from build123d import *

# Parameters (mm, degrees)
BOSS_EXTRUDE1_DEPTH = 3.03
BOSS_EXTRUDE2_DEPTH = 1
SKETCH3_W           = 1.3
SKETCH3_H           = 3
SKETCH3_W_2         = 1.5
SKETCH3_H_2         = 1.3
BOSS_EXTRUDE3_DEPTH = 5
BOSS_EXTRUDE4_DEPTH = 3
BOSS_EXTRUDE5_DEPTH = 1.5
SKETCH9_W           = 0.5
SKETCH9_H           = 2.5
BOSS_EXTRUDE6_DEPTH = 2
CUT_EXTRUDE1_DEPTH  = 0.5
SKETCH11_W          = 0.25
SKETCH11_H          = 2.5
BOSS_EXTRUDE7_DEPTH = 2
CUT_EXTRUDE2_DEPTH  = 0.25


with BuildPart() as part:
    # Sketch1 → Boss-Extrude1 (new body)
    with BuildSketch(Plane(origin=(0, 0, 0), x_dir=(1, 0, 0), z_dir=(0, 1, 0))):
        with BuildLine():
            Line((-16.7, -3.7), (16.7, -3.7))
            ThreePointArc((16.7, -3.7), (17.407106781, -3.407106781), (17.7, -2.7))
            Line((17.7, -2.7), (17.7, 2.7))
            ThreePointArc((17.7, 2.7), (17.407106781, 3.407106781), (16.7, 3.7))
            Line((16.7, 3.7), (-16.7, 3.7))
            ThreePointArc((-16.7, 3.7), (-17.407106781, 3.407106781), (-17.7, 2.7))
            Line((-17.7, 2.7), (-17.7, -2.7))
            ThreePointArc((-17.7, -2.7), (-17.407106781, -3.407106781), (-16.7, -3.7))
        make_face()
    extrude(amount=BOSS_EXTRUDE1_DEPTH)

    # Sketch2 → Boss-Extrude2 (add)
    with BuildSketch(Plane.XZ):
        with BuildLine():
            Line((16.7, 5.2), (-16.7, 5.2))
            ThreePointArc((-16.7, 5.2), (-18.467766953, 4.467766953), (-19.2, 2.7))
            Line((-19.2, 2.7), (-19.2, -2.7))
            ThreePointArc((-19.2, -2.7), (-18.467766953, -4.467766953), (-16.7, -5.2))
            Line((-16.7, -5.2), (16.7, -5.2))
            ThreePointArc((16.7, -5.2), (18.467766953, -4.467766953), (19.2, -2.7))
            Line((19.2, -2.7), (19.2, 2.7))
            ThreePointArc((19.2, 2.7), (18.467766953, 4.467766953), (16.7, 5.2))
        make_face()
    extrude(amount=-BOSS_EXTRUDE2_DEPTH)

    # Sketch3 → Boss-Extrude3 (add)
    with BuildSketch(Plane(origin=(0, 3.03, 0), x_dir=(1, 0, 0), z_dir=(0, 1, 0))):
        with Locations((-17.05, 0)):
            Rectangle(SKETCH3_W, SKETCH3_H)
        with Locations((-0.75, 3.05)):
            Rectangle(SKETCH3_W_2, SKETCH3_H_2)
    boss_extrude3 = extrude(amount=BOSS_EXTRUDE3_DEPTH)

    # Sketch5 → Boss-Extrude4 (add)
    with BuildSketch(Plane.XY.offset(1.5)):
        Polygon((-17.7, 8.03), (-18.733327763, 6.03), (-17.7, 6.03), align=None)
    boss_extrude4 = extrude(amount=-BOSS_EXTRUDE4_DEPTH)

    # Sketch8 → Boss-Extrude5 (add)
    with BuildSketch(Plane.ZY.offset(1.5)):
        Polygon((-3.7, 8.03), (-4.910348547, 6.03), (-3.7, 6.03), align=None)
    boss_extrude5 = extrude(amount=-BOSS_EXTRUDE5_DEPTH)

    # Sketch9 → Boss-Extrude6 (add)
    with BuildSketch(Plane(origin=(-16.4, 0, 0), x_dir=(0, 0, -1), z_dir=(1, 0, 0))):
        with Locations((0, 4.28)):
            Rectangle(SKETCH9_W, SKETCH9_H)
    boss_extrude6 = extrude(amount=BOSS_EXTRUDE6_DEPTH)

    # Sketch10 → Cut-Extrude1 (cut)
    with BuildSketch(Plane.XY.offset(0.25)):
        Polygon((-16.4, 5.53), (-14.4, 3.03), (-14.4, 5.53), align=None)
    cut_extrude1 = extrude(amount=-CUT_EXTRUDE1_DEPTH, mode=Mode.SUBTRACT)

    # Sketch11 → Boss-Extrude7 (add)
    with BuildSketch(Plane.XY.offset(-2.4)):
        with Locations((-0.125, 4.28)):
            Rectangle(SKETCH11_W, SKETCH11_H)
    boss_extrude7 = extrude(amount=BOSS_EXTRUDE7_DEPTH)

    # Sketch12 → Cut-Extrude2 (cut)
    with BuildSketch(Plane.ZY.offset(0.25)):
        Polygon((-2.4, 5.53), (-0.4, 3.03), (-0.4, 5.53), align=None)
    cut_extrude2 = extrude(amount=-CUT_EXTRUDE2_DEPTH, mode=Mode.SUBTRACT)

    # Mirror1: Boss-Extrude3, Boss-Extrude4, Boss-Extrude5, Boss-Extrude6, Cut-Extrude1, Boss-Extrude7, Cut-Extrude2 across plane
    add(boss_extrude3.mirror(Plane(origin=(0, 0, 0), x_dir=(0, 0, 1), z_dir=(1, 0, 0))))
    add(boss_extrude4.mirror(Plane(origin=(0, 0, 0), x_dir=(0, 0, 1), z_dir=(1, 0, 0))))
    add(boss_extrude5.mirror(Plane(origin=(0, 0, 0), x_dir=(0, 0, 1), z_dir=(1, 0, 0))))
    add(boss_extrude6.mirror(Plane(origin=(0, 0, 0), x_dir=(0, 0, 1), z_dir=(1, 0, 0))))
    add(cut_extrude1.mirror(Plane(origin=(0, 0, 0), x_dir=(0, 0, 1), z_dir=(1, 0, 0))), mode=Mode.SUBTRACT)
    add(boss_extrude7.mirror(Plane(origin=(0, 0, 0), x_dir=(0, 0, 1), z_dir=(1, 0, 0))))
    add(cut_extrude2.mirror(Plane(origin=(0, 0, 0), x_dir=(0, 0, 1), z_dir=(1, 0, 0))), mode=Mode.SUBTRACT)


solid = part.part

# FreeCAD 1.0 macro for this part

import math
import FreeCAD as App
import Part
import Sketcher
Q = App.Units.Quantity

doc = App.newDocument("Part")
body = doc.addObject("PartDesign::Body", "Body")

# Sketch on XZ plane
sketch1 = body.newObject("Sketcher::SketchObject", "Sketch")
sketch1.AttachmentSupport = (doc.getObject("XZ_Plane"), [""])
sketch1.MapMode = "FlatFace"
sketch1.addGeometry(Part.LineSegment(App.Vector(-16.7, 3.7, 0), App.Vector(16.7, 3.7, 0)), False)
sketch1.addGeometry(Part.ArcOfCircle(Part.Circle(App.Vector(16.7, 2.7, 0), App.Vector(0, 0, 1), 1), math.radians(0), math.radians(90)), False)
sketch1.addGeometry(Part.LineSegment(App.Vector(17.7, 2.7, 0), App.Vector(17.7, -2.7, 0)), False)
sketch1.addGeometry(Part.ArcOfCircle(Part.Circle(App.Vector(16.7, -2.7, 0), App.Vector(0, 0, 1), 1), math.radians(-90), math.radians(0)), False)
sketch1.addGeometry(Part.LineSegment(App.Vector(16.7, -3.7, 0), App.Vector(-16.7, -3.7, 0)), False)
sketch1.addGeometry(Part.ArcOfCircle(Part.Circle(App.Vector(-16.7, -2.7, 0), App.Vector(0, 0, 1), 1), math.radians(-180), math.radians(-90)), False)
sketch1.addGeometry(Part.LineSegment(App.Vector(-17.7, -2.7, 0), App.Vector(-17.7, 2.7, 0)), False)
sketch1.addGeometry(Part.ArcOfCircle(Part.Circle(App.Vector(-16.7, 2.7, 0), App.Vector(0, 0, 1), 1), math.radians(90), math.radians(180)), False)
sketch1.addConstraint(Sketcher.Constraint("Tangent", 0, 2, 1, 2))
sketch1.addConstraint(Sketcher.Constraint("Tangent", 1, 1, 2, 1))
sketch1.addConstraint(Sketcher.Constraint("Tangent", 2, 2, 3, 2))
sketch1.addConstraint(Sketcher.Constraint("Tangent", 3, 1, 4, 1))
sketch1.addConstraint(Sketcher.Constraint("Tangent", 4, 2, 5, 2))
sketch1.addConstraint(Sketcher.Constraint("Tangent", 5, 1, 6, 1))
sketch1.addConstraint(Sketcher.Constraint("Tangent", 6, 2, 7, 2))
sketch1.addConstraint(Sketcher.Constraint("Tangent", 7, 1, 0, 1))
sketch1.addConstraint(Sketcher.Constraint("Horizontal", 0))
sketch1.addConstraint(Sketcher.Constraint("Vertical", 2))
sketch1.addConstraint(Sketcher.Constraint("Horizontal", 4))
sketch1.addConstraint(Sketcher.Constraint("Vertical", 6))
sketch1.addConstraint(Sketcher.Constraint("Equal", 1, 3))
sketch1.addConstraint(Sketcher.Constraint("Equal", 3, 5))
sketch1.addConstraint(Sketcher.Constraint("Equal", 5, 7))
sketch1.addConstraint(Sketcher.Constraint("Symmetric", 1, 3, 5, 3, -1, 1))
sketch1.addConstraint(Sketcher.Constraint("Radius", 1, Q("1 mm")))
sketch1.addConstraint(Sketcher.Constraint("DistanceX", 0, 1, 0, 2, Q("33.4 mm")))
sketch1.addConstraint(Sketcher.Constraint("DistanceY", 2, 2, 2, 1, Q("5.4 mm")))
pad1 = body.newObject("PartDesign::Pad", "Pad")
pad1.Profile = sketch1
pad1.Length = 3.03
pad1.Reversed = True

# Sketch on XZ plane
sketch2 = body.newObject("Sketcher::SketchObject", "Sketch001")
sketch2.AttachmentSupport = (doc.getObject("XZ_Plane"), [""])
sketch2.MapMode = "FlatFace"
sketch2.addGeometry(Part.LineSegment(App.Vector(16.7, 5.2, 0), App.Vector(-16.7, 5.2, 0)), False)
sketch2.addGeometry(Part.ArcOfCircle(Part.Circle(App.Vector(-16.7, 2.7, 0), App.Vector(0, 0, 1), 2.5), math.radians(90), math.radians(180)), False)
sketch2.addGeometry(Part.LineSegment(App.Vector(-19.2, 2.7, 0), App.Vector(-19.2, -2.7, 0)), False)
sketch2.addGeometry(Part.ArcOfCircle(Part.Circle(App.Vector(-16.7, -2.7, 0), App.Vector(0, 0, 1), 2.5), math.radians(180), math.radians(270)), False)
sketch2.addGeometry(Part.LineSegment(App.Vector(-16.7, -5.2, 0), App.Vector(16.7, -5.2, 0)), False)
sketch2.addGeometry(Part.ArcOfCircle(Part.Circle(App.Vector(16.7, -2.7, 0), App.Vector(0, 0, 1), 2.5), math.radians(-90), math.radians(0)), False)
sketch2.addGeometry(Part.LineSegment(App.Vector(19.2, -2.7, 0), App.Vector(19.2, 2.7, 0)), False)
sketch2.addGeometry(Part.ArcOfCircle(Part.Circle(App.Vector(16.7, 2.7, 0), App.Vector(0, 0, 1), 2.5), math.radians(0), math.radians(90)), False)
sketch2.addConstraint(Sketcher.Constraint("Tangent", 0, 2, 1, 1))
sketch2.addConstraint(Sketcher.Constraint("Tangent", 1, 2, 2, 1))
sketch2.addConstraint(Sketcher.Constraint("Tangent", 2, 2, 3, 1))
sketch2.addConstraint(Sketcher.Constraint("Tangent", 3, 2, 4, 1))
sketch2.addConstraint(Sketcher.Constraint("Tangent", 4, 2, 5, 1))
sketch2.addConstraint(Sketcher.Constraint("Tangent", 5, 2, 6, 1))
sketch2.addConstraint(Sketcher.Constraint("Tangent", 6, 2, 7, 1))
sketch2.addConstraint(Sketcher.Constraint("Tangent", 7, 2, 0, 1))
sketch2.addConstraint(Sketcher.Constraint("Horizontal", 0))
sketch2.addConstraint(Sketcher.Constraint("Vertical", 2))
sketch2.addConstraint(Sketcher.Constraint("Horizontal", 4))
sketch2.addConstraint(Sketcher.Constraint("Vertical", 6))
sketch2.addConstraint(Sketcher.Constraint("Equal", 1, 3))
sketch2.addConstraint(Sketcher.Constraint("Equal", 3, 5))
sketch2.addConstraint(Sketcher.Constraint("Equal", 5, 7))
sketch2.addConstraint(Sketcher.Constraint("Symmetric", 1, 3, 5, 3, -1, 1))
sketch2.addConstraint(Sketcher.Constraint("Radius", 1, Q("2.5 mm")))
sketch2.addConstraint(Sketcher.Constraint("DistanceX", 0, 2, 0, 1, Q("33.4 mm")))
sketch2.addConstraint(Sketcher.Constraint("DistanceY", 2, 2, 2, 1, Q("5.4 mm")))
pad2 = body.newObject("PartDesign::Pad", "Pad001")
pad2.Profile = sketch2
pad2.Length = 1
pad2.Reversed = True

# Sketch on XZ plane
sketch3 = body.newObject("Sketcher::SketchObject", "Sketch002")
sketch3.AttachmentSupport = (doc.getObject("XZ_Plane"), [""])
sketch3.MapMode = "FlatFace"
sketch3.AttachmentOffset = App.Placement(App.Vector(0, 0, -3.03), App.Rotation())
sketch3.addGeometry(Part.LineSegment(App.Vector(-17.7, -1.5, 0), App.Vector(-17.7, 1.5, 0)), False)
sketch3.addGeometry(Part.LineSegment(App.Vector(-17.7, 1.5, 0), App.Vector(-16.4, 1.5, 0)), False)
sketch3.addGeometry(Part.LineSegment(App.Vector(-16.4, 1.5, 0), App.Vector(-16.4, -1.5, 0)), False)
sketch3.addGeometry(Part.LineSegment(App.Vector(-16.4, -1.5, 0), App.Vector(-17.7, -1.5, 0)), False)
sketch3.addGeometry(Part.LineSegment(App.Vector(-1.5, -3.7, 0), App.Vector(-1.5, -2.4, 0)), False)
sketch3.addGeometry(Part.LineSegment(App.Vector(-1.5, -2.4, 0), App.Vector(0, -2.4, 0)), False)
sketch3.addGeometry(Part.LineSegment(App.Vector(0, -2.4, 0), App.Vector(0, -3.7, 0)), False)
sketch3.addGeometry(Part.LineSegment(App.Vector(0, -3.7, 0), App.Vector(-1.5, -3.7, 0)), False)
sketch3.addConstraint(Sketcher.Constraint("Coincident", 0, 2, 1, 1))
sketch3.addConstraint(Sketcher.Constraint("Coincident", 1, 2, 2, 1))
sketch3.addConstraint(Sketcher.Constraint("Coincident", 2, 2, 3, 1))
sketch3.addConstraint(Sketcher.Constraint("Coincident", 3, 2, 0, 1))
sketch3.addConstraint(Sketcher.Constraint("Coincident", 4, 2, 5, 1))
sketch3.addConstraint(Sketcher.Constraint("Coincident", 5, 2, 6, 1))
sketch3.addConstraint(Sketcher.Constraint("Coincident", 6, 2, 7, 1))
sketch3.addConstraint(Sketcher.Constraint("Coincident", 7, 2, 4, 1))
sketch3.addConstraint(Sketcher.Constraint("Vertical", 0))
sketch3.addConstraint(Sketcher.Constraint("Horizontal", 1))
sketch3.addConstraint(Sketcher.Constraint("Vertical", 2))
sketch3.addConstraint(Sketcher.Constraint("Horizontal", 3))
sketch3.addConstraint(Sketcher.Constraint("Vertical", 4))
sketch3.addConstraint(Sketcher.Constraint("Horizontal", 5))
sketch3.addConstraint(Sketcher.Constraint("Vertical", 6))
sketch3.addConstraint(Sketcher.Constraint("Horizontal", 7))
sketch3.addConstraint(Sketcher.Constraint("PointOnObject", 5, 2, -2))
sketch3.addConstraint(Sketcher.Constraint("Equal", 3, 4))
sketch3.addConstraint(Sketcher.Constraint("DistanceY", 0, 1, 0, 2, Q("3 mm")))
sketch3.addConstraint(Sketcher.Constraint("DistanceX", 1, 1, 1, 2, Q("1.3 mm")))
sketch3.addConstraint(Sketcher.Constraint("DistanceX", 5, 1, 5, 2, Q("1.5 mm")))
sketch3.addConstraint(Sketcher.Constraint("DistanceX", 0, 2, -1, 1, Q("17.7 mm")))
sketch3.addConstraint(Sketcher.Constraint("DistanceY", -1, 1, 0, 2, Q("1.5 mm")))
sketch3.addConstraint(Sketcher.Constraint("DistanceY", 4, 2, -1, 1, Q("2.4 mm")))
pad3 = body.newObject("PartDesign::Pad", "Pad002")
pad3.Profile = sketch3
pad3.Length = 5
pad3.Reversed = True

# Sketch on XY plane
sketch4 = body.newObject("Sketcher::SketchObject", "Sketch003")
sketch4.AttachmentSupport = (doc.getObject("XY_Plane"), [""])
sketch4.MapMode = "FlatFace"
sketch4.AttachmentOffset = App.Placement(App.Vector(0, 0, 1.5), App.Rotation())
sketch4.addGeometry(Part.LineSegment(App.Vector(-17.7, 8, 0), App.Vector(-18.7, 6, 0)), False)
sketch4.addGeometry(Part.LineSegment(App.Vector(-18.7, 6, 0), App.Vector(-17.7, 6, 0)), False)
sketch4.addGeometry(Part.LineSegment(App.Vector(-17.7, 6, 0), App.Vector(-17.7, 8, 0)), False)
sketch4.addConstraint(Sketcher.Constraint("Coincident", 0, 2, 1, 1))
sketch4.addConstraint(Sketcher.Constraint("Coincident", 1, 2, 2, 1))
sketch4.addConstraint(Sketcher.Constraint("Coincident", 2, 2, 0, 1))
sketch4.addConstraint(Sketcher.Constraint("Horizontal", 1))
sketch4.addConstraint(Sketcher.Constraint("Vertical", 2))
sketch4.addConstraint(Sketcher.Constraint("DistanceY", 2, 1, 2, 2, Q("2 mm")))
sketch4.addConstraint(Sketcher.Constraint("DistanceX", 1, 2, -1, 1, Q("17.7 mm")))
sketch4.addConstraint(Sketcher.Constraint("DistanceY", -1, 1, 0, 2, Q("6.03 mm")))
sketch4.addConstraint(Sketcher.Constraint("Distance", 0, Q("2.25117 mm")))
pad4 = body.newObject("PartDesign::Pad", "Pad003")
pad4.Profile = sketch4
pad4.Length = 3
pad4.Reversed = True

# Sketch on YZ plane
sketch5 = body.newObject("Sketcher::SketchObject", "Sketch004")
sketch5.AttachmentSupport = (doc.getObject("YZ_Plane"), [""])
sketch5.MapMode = "FlatFace"
sketch5.AttachmentOffset = App.Placement(App.Vector(0, 0, -1.5), App.Rotation())
sketch5.addGeometry(Part.LineSegment(App.Vector(8, -3.7, 0), App.Vector(6, -4.9, 0)), False)
sketch5.addGeometry(Part.LineSegment(App.Vector(6, -4.9, 0), App.Vector(6, -3.7, 0)), False)
sketch5.addGeometry(Part.LineSegment(App.Vector(6, -3.7, 0), App.Vector(8, -3.7, 0)), False)
sketch5.addConstraint(Sketcher.Constraint("Coincident", 0, 2, 1, 1))
sketch5.addConstraint(Sketcher.Constraint("Coincident", 1, 2, 2, 1))
sketch5.addConstraint(Sketcher.Constraint("Coincident", 2, 2, 0, 1))
sketch5.addConstraint(Sketcher.Constraint("Vertical", 1))
sketch5.addConstraint(Sketcher.Constraint("Horizontal", 2))
sketch5.addConstraint(Sketcher.Constraint("DistanceX", 2, 1, 2, 2, Q("2 mm")))
sketch5.addConstraint(Sketcher.Constraint("DistanceY", 1, 2, -1, 1, Q("3.7 mm")))
sketch5.addConstraint(Sketcher.Constraint("DistanceX", -1, 1, 0, 2, Q("6.03 mm")))
sketch5.addConstraint(Sketcher.Constraint("DistanceY", 1, 1, 1, 2, Q("1.210349 mm")))
pad5 = body.newObject("PartDesign::Pad", "Pad004")
pad5.Profile = sketch5
pad5.Length = 1.5

# Sketch on YZ plane
sketch6 = body.newObject("Sketcher::SketchObject", "Sketch005")
sketch6.AttachmentSupport = (doc.getObject("YZ_Plane"), [""])
sketch6.MapMode = "FlatFace"
sketch6.AttachmentOffset = App.Placement(App.Vector(0, 0, -16.4), App.Rotation())
sketch6.addGeometry(Part.LineSegment(App.Vector(5.5, 0.2, 0), App.Vector(3, 0.2, 0)), False)
sketch6.addGeometry(Part.LineSegment(App.Vector(3, 0.2, 0), App.Vector(3, -0.2, 0)), False)
sketch6.addGeometry(Part.LineSegment(App.Vector(3, -0.2, 0), App.Vector(5.5, -0.2, 0)), False)
sketch6.addGeometry(Part.LineSegment(App.Vector(5.5, -0.2, 0), App.Vector(5.5, 0.2, 0)), False)
sketch6.addConstraint(Sketcher.Constraint("Coincident", 0, 2, 1, 1))
sketch6.addConstraint(Sketcher.Constraint("Coincident", 1, 2, 2, 1))
sketch6.addConstraint(Sketcher.Constraint("Coincident", 2, 2, 3, 1))
sketch6.addConstraint(Sketcher.Constraint("Coincident", 3, 2, 0, 1))
sketch6.addConstraint(Sketcher.Constraint("Horizontal", 0))
sketch6.addConstraint(Sketcher.Constraint("Vertical", 1))
sketch6.addConstraint(Sketcher.Constraint("Horizontal", 2))
sketch6.addConstraint(Sketcher.Constraint("Vertical", 3))
sketch6.addConstraint(Sketcher.Constraint("DistanceX", 0, 2, 0, 1, Q("2.5 mm")))
sketch6.addConstraint(Sketcher.Constraint("DistanceY", 1, 2, 1, 1, Q("0.5 mm")))
sketch6.addConstraint(Sketcher.Constraint("DistanceX", -1, 1, 0, 2, Q("3.03 mm")))
sketch6.addConstraint(Sketcher.Constraint("DistanceY", -1, 1, 0, 2, Q("0.25 mm")))
pad6 = body.newObject("PartDesign::Pad", "Pad005")
pad6.Profile = sketch6
pad6.Length = 2

# Sketch on XY plane
sketch7 = body.newObject("Sketcher::SketchObject", "Sketch006")
sketch7.AttachmentSupport = (doc.getObject("XY_Plane"), [""])
sketch7.MapMode = "FlatFace"
sketch7.AttachmentOffset = App.Placement(App.Vector(0, 0, 0.25), App.Rotation())
sketch7.addGeometry(Part.LineSegment(App.Vector(-16.4, 5.5, 0), App.Vector(-14.4, 3, 0)), False)
sketch7.addGeometry(Part.LineSegment(App.Vector(-14.4, 3, 0), App.Vector(-14.4, 5.5, 0)), False)
sketch7.addGeometry(Part.LineSegment(App.Vector(-14.4, 5.5, 0), App.Vector(-16.4, 5.5, 0)), False)
sketch7.addConstraint(Sketcher.Constraint("Coincident", 0, 2, 1, 1))
sketch7.addConstraint(Sketcher.Constraint("Coincident", 1, 2, 2, 1))
sketch7.addConstraint(Sketcher.Constraint("Coincident", 2, 2, 0, 1))
sketch7.addConstraint(Sketcher.Constraint("Vertical", 1))
sketch7.addConstraint(Sketcher.Constraint("Horizontal", 2))
sketch7.addConstraint(Sketcher.Constraint("DistanceX", 2, 2, 2, 1, Q("2 mm")))
sketch7.addConstraint(Sketcher.Constraint("DistanceY", 1, 1, 1, 2, Q("2.5 mm")))
sketch7.addConstraint(Sketcher.Constraint("DistanceX", 0, 2, -1, 1, Q("14.4 mm")))
sketch7.addConstraint(Sketcher.Constraint("DistanceY", -1, 1, 0, 2, Q("3.03 mm")))
pocket1 = body.newObject("PartDesign::Pocket", "Pocket")
pocket1.Profile = sketch7
pocket1.Length = 0.5

# Sketch on XY plane
sketch8 = body.newObject("Sketcher::SketchObject", "Sketch007")
sketch8.AttachmentSupport = (doc.getObject("XY_Plane"), [""])
sketch8.MapMode = "FlatFace"
sketch8.AttachmentOffset = App.Placement(App.Vector(0, 0, -2.4), App.Rotation())
sketch8.addGeometry(Part.LineSegment(App.Vector(-0.25, 5.53, 0), App.Vector(-0.25, 3.03, 0)), False)
sketch8.addGeometry(Part.LineSegment(App.Vector(-0.25, 3.03, 0), App.Vector(0, 3.03, 0)), False)
sketch8.addGeometry(Part.LineSegment(App.Vector(0, 3.03, 0), App.Vector(0, 5.53, 0)), False)
sketch8.addGeometry(Part.LineSegment(App.Vector(0, 5.53, 0), App.Vector(-0.25, 5.53, 0)), False)
sketch8.addConstraint(Sketcher.Constraint("Coincident", 0, 2, 1, 1))
sketch8.addConstraint(Sketcher.Constraint("Coincident", 1, 2, 2, 1))
sketch8.addConstraint(Sketcher.Constraint("Coincident", 2, 2, 3, 1))
sketch8.addConstraint(Sketcher.Constraint("Coincident", 3, 2, 0, 1))
sketch8.addConstraint(Sketcher.Constraint("Vertical", 0))
sketch8.addConstraint(Sketcher.Constraint("Horizontal", 1))
sketch8.addConstraint(Sketcher.Constraint("Vertical", 2))
sketch8.addConstraint(Sketcher.Constraint("Horizontal", 3))
sketch8.addConstraint(Sketcher.Constraint("PointOnObject", 1, 2, -2))
sketch8.addConstraint(Sketcher.Constraint("DistanceY", 0, 2, 0, 1, Q("2.5 mm")))
sketch8.addConstraint(Sketcher.Constraint("DistanceX", 1, 1, 1, 2, Q("0.25 mm")))
sketch8.addConstraint(Sketcher.Constraint("DistanceY", -1, 1, 0, 2, Q("3.03 mm")))
pad7 = body.newObject("PartDesign::Pad", "Pad006")
pad7.Profile = sketch8
pad7.Length = 2

# Sketch on YZ plane
sketch9 = body.newObject("Sketcher::SketchObject", "Sketch008")
sketch9.AttachmentSupport = (doc.getObject("YZ_Plane"), [""])
sketch9.MapMode = "FlatFace"
sketch9.AttachmentOffset = App.Placement(App.Vector(0, 0, -0.25), App.Rotation())
sketch9.addGeometry(Part.LineSegment(App.Vector(5.5, -2.4, 0), App.Vector(3, -0.4, 0)), False)
sketch9.addGeometry(Part.LineSegment(App.Vector(3, -0.4, 0), App.Vector(5.5, -0.4, 0)), False)
sketch9.addGeometry(Part.LineSegment(App.Vector(5.5, -0.4, 0), App.Vector(5.5, -2.4, 0)), False)
sketch9.addConstraint(Sketcher.Constraint("Coincident", 0, 2, 1, 1))
sketch9.addConstraint(Sketcher.Constraint("Coincident", 1, 2, 2, 1))
sketch9.addConstraint(Sketcher.Constraint("Coincident", 2, 2, 0, 1))
sketch9.addConstraint(Sketcher.Constraint("Horizontal", 1))
sketch9.addConstraint(Sketcher.Constraint("Vertical", 2))
sketch9.addConstraint(Sketcher.Constraint("DistanceY", 2, 2, 2, 1, Q("2 mm")))
sketch9.addConstraint(Sketcher.Constraint("DistanceX", 1, 1, 1, 2, Q("2.5 mm")))
sketch9.addConstraint(Sketcher.Constraint("DistanceY", 0, 2, -1, 1, Q("0.4 mm")))
sketch9.addConstraint(Sketcher.Constraint("DistanceX", -1, 1, 0, 2, Q("3.03 mm")))
pocket2 = body.newObject("PartDesign::Pocket", "Pocket001")
pocket2.Profile = sketch9
pocket2.Length = 0.25
pocket2.Reversed = True
doc.recompute()

mirrored = body.newObject("PartDesign::Mirrored", "Mirrored")
mirrored.Originals = [pad3, pad4, pad5, pad6, pocket1, pad7, pocket2]
mirrored.MirrorPlane = (doc.getObject("YZ_Plane"), [""])
body.Tip = mirrored

doc.recompute()
